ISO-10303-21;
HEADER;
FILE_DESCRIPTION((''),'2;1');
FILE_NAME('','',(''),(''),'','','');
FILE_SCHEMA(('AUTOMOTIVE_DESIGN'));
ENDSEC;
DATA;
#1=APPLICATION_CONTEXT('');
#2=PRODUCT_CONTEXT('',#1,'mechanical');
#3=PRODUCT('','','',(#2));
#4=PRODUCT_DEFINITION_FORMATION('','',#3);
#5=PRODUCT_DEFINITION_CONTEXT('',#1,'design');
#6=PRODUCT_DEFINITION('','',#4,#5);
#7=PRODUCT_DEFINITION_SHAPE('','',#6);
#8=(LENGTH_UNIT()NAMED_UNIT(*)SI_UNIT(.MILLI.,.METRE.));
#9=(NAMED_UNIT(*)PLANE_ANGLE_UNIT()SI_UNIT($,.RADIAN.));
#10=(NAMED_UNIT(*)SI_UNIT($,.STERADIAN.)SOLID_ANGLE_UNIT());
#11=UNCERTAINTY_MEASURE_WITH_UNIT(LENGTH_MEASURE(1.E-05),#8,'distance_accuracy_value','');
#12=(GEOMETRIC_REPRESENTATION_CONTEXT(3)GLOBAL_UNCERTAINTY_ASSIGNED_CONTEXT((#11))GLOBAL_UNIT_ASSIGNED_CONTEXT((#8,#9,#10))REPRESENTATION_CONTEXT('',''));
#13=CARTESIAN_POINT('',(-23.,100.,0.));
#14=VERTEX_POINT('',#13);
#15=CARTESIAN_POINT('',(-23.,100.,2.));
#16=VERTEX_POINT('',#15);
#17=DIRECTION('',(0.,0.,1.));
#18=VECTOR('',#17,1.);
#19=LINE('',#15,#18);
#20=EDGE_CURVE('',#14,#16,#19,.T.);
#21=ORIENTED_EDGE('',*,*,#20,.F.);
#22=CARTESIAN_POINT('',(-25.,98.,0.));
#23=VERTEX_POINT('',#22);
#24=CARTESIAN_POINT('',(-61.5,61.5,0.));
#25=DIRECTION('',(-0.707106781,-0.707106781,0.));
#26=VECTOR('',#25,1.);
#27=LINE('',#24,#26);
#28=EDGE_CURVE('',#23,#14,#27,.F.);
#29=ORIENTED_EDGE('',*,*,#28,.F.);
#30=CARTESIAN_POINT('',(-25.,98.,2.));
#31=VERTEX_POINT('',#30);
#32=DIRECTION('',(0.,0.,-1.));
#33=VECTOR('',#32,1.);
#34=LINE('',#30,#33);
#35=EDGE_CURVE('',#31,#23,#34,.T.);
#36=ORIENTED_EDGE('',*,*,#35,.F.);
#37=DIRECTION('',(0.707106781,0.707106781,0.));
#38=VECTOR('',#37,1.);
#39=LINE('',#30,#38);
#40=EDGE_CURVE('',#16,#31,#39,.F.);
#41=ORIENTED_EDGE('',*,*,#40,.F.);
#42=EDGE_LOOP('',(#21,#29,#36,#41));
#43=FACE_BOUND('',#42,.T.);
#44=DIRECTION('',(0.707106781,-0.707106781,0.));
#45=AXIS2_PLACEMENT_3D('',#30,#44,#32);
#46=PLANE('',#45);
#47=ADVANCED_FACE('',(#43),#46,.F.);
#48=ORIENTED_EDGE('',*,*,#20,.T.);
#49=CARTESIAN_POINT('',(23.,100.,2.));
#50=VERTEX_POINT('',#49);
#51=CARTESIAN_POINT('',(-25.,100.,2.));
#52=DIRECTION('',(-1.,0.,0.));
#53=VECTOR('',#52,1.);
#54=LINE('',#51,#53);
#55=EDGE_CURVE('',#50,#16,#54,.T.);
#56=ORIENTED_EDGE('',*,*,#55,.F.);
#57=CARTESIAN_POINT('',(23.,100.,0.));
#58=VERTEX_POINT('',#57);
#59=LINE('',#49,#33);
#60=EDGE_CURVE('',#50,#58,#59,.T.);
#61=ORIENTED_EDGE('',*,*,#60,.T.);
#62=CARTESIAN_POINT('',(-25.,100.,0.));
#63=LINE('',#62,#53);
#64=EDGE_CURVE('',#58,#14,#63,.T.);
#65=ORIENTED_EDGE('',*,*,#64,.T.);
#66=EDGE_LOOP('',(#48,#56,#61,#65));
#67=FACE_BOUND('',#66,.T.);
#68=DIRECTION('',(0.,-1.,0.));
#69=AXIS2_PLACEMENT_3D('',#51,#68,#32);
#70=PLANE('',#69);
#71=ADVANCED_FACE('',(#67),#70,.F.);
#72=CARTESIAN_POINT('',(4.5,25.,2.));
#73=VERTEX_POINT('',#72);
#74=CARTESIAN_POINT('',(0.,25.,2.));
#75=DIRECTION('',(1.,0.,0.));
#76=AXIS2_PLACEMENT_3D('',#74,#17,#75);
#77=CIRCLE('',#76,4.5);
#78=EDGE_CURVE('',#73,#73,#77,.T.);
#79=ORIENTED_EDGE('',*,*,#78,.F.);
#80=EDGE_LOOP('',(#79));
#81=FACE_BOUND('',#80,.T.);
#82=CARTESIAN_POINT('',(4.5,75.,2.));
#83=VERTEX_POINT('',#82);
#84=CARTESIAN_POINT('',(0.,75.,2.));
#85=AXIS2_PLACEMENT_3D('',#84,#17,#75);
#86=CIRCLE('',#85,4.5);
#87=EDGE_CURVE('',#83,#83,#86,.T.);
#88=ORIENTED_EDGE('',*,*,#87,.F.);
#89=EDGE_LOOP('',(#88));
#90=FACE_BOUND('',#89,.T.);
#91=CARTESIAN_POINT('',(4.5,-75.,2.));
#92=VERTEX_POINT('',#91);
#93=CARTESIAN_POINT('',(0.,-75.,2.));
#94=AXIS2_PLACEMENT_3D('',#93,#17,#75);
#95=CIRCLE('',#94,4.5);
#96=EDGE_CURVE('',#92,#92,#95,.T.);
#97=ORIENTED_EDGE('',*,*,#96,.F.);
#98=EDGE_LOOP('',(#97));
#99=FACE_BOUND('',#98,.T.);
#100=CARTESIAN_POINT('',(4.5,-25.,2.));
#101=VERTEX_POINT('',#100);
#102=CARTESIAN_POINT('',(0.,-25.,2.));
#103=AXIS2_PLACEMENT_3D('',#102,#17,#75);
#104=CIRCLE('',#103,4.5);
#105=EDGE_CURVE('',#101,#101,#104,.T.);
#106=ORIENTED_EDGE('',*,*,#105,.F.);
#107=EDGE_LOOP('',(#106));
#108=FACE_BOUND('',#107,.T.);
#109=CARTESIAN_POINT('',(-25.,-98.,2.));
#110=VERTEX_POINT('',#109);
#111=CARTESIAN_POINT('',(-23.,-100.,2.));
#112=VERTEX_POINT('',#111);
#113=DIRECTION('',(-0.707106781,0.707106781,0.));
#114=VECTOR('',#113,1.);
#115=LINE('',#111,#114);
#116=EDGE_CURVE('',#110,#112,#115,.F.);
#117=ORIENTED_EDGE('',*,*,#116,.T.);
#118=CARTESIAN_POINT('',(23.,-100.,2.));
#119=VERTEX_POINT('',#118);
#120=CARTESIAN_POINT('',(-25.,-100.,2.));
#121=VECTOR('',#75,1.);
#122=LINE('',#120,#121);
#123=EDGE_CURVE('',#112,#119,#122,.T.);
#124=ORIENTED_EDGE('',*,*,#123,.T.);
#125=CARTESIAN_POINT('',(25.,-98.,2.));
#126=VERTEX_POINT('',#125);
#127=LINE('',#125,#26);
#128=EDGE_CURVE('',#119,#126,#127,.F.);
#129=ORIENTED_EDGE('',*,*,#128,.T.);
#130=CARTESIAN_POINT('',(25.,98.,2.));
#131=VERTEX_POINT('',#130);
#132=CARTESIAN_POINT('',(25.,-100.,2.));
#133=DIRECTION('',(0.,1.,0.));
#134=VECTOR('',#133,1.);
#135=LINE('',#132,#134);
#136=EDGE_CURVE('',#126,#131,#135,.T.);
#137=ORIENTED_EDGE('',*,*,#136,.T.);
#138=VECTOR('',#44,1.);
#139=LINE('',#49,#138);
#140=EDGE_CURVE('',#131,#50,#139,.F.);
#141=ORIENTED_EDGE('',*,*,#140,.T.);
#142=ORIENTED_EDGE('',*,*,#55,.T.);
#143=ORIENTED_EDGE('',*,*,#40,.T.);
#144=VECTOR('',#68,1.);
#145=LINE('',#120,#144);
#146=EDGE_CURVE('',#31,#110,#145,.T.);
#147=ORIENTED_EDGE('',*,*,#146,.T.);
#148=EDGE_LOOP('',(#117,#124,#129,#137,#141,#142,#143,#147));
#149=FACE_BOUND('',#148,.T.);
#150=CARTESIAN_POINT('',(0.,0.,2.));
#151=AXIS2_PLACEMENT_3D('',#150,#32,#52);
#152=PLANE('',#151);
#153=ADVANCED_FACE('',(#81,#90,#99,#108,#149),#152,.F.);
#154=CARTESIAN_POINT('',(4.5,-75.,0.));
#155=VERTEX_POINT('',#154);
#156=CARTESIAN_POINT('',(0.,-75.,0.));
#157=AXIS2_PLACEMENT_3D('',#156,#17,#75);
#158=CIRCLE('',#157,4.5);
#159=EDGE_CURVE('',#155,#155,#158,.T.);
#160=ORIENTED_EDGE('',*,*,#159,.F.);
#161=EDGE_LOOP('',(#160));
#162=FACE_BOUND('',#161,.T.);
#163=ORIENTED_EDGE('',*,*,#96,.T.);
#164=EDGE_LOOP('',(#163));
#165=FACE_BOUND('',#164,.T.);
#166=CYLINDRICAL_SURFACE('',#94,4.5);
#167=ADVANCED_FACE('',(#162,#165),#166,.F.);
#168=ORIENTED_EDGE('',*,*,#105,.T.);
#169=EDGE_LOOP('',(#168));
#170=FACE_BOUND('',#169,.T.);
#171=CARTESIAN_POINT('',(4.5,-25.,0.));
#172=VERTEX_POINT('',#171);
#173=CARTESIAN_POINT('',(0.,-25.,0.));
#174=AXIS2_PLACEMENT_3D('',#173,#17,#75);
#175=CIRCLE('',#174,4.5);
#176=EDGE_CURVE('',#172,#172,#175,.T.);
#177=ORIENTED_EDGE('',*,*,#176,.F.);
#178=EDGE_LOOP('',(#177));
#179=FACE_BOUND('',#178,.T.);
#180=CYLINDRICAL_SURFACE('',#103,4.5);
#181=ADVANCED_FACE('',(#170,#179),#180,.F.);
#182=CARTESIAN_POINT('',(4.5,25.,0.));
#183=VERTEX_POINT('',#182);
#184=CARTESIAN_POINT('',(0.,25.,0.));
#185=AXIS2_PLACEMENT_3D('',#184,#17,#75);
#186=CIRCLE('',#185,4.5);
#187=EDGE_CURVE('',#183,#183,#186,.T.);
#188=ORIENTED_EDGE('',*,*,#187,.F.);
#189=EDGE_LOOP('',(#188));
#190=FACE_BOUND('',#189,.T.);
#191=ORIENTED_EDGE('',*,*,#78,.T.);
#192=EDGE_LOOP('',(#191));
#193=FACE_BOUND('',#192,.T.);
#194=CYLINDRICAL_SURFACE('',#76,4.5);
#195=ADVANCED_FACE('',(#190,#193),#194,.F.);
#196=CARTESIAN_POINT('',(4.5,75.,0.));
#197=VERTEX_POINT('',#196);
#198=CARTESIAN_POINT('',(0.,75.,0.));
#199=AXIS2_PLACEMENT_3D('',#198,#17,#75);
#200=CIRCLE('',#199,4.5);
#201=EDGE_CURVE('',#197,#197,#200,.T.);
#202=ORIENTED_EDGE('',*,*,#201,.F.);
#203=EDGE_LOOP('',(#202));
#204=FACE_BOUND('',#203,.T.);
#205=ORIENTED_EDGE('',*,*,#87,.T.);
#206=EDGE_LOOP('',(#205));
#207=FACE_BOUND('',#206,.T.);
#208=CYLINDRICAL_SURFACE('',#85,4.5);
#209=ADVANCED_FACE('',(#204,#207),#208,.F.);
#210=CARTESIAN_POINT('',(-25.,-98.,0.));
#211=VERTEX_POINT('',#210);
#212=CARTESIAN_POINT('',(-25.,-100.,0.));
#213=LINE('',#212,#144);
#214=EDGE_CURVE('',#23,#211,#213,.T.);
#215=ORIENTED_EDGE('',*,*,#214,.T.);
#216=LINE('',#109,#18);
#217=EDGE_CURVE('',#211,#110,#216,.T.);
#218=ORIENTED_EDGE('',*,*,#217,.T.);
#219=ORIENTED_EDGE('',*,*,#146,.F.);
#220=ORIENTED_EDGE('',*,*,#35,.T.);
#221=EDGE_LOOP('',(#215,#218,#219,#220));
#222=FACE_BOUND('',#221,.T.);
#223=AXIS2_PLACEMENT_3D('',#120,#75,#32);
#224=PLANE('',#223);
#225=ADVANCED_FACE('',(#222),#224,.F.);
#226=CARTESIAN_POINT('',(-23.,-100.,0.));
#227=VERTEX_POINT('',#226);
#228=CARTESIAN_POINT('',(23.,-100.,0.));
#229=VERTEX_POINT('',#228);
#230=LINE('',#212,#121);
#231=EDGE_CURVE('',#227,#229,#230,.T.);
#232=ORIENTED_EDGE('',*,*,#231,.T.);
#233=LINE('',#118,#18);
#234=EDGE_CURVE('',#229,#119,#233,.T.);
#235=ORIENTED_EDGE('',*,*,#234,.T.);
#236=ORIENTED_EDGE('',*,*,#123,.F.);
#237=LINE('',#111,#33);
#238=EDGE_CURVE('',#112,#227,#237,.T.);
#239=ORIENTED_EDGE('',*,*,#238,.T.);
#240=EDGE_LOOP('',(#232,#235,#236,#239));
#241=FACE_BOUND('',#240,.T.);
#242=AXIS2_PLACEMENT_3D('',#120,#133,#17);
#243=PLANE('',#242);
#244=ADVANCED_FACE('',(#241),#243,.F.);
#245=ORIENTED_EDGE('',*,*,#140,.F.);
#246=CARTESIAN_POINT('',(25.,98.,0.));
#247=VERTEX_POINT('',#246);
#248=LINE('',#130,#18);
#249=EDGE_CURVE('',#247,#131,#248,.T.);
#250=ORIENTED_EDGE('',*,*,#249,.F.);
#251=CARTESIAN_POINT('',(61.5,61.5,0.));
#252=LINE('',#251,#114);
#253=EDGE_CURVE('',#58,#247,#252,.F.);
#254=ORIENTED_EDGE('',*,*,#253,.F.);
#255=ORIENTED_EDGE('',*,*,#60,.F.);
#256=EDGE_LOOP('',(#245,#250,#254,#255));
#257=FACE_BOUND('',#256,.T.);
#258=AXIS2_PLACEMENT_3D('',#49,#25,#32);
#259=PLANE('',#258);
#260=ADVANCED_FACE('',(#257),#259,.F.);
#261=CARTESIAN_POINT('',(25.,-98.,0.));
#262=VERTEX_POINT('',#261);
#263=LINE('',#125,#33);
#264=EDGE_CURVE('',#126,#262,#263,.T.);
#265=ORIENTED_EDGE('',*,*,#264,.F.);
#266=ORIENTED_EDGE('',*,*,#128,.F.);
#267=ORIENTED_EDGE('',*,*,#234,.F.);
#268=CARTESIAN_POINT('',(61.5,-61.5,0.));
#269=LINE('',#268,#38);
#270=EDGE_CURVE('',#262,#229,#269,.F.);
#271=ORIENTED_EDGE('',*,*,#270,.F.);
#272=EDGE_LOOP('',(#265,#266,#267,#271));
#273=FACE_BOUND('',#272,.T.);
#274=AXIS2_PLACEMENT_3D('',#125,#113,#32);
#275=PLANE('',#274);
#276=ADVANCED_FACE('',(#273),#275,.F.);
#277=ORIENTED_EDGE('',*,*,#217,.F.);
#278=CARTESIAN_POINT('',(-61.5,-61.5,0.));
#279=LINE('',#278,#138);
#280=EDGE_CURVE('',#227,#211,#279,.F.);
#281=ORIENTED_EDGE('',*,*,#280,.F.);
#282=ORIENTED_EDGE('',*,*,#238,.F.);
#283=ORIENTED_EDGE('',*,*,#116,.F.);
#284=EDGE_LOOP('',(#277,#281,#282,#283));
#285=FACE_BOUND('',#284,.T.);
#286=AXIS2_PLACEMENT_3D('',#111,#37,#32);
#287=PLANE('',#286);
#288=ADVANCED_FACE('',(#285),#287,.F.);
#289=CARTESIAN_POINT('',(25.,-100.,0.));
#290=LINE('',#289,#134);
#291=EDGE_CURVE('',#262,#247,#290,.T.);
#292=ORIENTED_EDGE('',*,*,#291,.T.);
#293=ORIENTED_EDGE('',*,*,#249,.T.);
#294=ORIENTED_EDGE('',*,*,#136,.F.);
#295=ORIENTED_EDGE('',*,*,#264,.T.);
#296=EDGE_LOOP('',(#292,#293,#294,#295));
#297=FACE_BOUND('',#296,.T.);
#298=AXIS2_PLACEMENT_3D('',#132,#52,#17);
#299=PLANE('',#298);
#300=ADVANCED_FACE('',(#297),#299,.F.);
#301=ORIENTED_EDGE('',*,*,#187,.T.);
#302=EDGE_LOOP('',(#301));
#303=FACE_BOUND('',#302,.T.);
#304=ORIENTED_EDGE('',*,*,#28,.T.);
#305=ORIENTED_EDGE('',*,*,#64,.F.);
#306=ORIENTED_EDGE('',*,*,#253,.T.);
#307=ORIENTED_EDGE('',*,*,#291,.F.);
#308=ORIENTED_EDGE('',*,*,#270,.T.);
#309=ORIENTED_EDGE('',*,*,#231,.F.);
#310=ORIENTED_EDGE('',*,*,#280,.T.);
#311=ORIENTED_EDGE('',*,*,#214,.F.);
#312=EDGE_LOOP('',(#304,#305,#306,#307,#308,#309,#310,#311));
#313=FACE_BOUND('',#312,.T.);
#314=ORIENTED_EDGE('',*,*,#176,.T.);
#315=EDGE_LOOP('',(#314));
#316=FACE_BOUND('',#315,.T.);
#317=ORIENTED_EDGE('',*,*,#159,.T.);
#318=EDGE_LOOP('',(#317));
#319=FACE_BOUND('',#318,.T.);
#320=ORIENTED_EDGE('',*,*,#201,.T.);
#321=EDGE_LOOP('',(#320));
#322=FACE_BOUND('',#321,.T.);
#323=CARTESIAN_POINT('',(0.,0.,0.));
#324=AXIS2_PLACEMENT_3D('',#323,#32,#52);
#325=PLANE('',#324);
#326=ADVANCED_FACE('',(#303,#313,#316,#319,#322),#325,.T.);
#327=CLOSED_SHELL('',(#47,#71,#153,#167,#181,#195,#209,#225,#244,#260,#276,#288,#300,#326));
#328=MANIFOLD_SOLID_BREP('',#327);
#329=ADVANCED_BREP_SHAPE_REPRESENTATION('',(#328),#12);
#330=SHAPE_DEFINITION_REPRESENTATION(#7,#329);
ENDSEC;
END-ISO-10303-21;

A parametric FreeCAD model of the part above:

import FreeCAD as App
import Part
import Sketcher

V = App.Vector
Q = App.Units.Quantity


def edges_at(feature, points):
    """Names of the edges that pass closest to the given points."""
    edges = feature.Shape.Edges
    near = lambda p: min(range(len(edges)), key=lambda i: edges[i].distToShape(Part.Vertex(*p))[0])
    return sorted({f"Edge{near(p) + 1}" for p in points})


def add_polygon(sketch, points):
    """Adds a closed chain of lines whose ends are joined by coincident constraints."""
    first, n = sketch.GeometryCount, len(points)
    for a, b in zip(points, points[1:] + points[:1]):
        sketch.addGeometry(Part.LineSegment(App.Vector(*a, 0), App.Vector(*b, 0)), False)
    for i in range(n):
        sketch.addConstraint(Sketcher.Constraint("Coincident", first + i, 2, first + (i + 1) % n, 1))

doc = App.newDocument("Part")
body = doc.addObject("PartDesign::Body", "Body")

# Sketch on XY plane
sketch1 = doc.addObject("Sketcher::SketchObject", "Sketch")
body.addObject(sketch1)
sketch1.AttachmentSupport = (doc.XY_Plane, [""])
sketch1.MapMode = "FlatFace"
add_polygon(sketch1, [(-25, 100), (-25, -100), (25, -100), (25, 100)])  # lines 0-3
sketch1.addConstraint(Sketcher.Constraint("Vertical", 0))
sketch1.addConstraint(Sketcher.Constraint("Horizontal", 1))
sketch1.addConstraint(Sketcher.Constraint("Vertical", 2))
sketch1.addConstraint(Sketcher.Constraint("Horizontal", 3))
sketch1.addConstraint(Sketcher.Constraint("Symmetric", 0, 2, 2, 2, -1, 1))
sketch1.addConstraint(Sketcher.Constraint("DistanceX", 1, 1, 1, 2, Q("50 mm")))
sketch1.addConstraint(Sketcher.Constraint("DistanceY", 0, 2, 0, 1, Q("200 mm")))
pad1 = doc.addObject("PartDesign::Pad", "Pad")
body.addObject(pad1)
pad1.Profile = sketch1
pad1.Length = 2
doc.recompute()

chamfer = doc.addObject("PartDesign::Chamfer", "Chamfer")
body.addObject(chamfer)
chamfer.Base = (pad1, edges_at(pad1, [
    (25, -100, 1),
    (-25, -100, 1),
    (-25, 100, 1),
    (25, 100, 1),
]))
chamfer.Size = 2

# Sketch on XY plane
sketch2 = doc.addObject("Sketcher::SketchObject", "Sketch001")
body.addObject(sketch2)
sketch2.AttachmentSupport = (doc.XY_Plane, [""])
sketch2.MapMode = "FlatFace"
sketch2.AttachmentOffset = App.Placement(V(0, 0, 2), App.Rotation())
sketch2.addGeometry(Part.Circle(V(0, 75, 0), V(0, 0, 1), 4.5), False)
sketch2.addGeometry(Part.Circle(V(0, 25, 0), V(0, 0, 1), 4.5), False)
sketch2.addGeometry(Part.Circle(V(0, -25, 0), V(0, 0, 1), 4.5), False)
sketch2.addGeometry(Part.Circle(V(0, -75, 0), V(0, 0, 1), 4.5), False)
sketch2.addConstraint(Sketcher.Constraint("Equal", 0, 1))
sketch2.addConstraint(Sketcher.Constraint("Equal", 1, 2))
sketch2.addConstraint(Sketcher.Constraint("Equal", 2, 3))
sketch2.addConstraint(Sketcher.Constraint("Symmetric", 1, 3, 2, 3, -1, 1))
sketch2.addConstraint(Sketcher.Constraint("Symmetric", 0, 3, 3, 3, -1, 1))
sketch2.addConstraint(Sketcher.Constraint("PointOnObject", 0, 3, -2))
sketch2.addConstraint(Sketcher.Constraint("PointOnObject", 1, 3, -2))
sketch2.addConstraint(Sketcher.Constraint("Diameter", 0, Q("9 mm")))
sketch2.addConstraint(Sketcher.Constraint("DistanceY", -1, 1, 0, 3, Q("75 mm")))
sketch2.addConstraint(Sketcher.Constraint("DistanceY", -1, 1, 1, 3, Q("25 mm")))
doc.recompute()
hole = doc.addObject("PartDesign::Hole", "Hole")
body.addObject(hole)
hole.Profile = sketch2
hole.ThreadType = "None"
hole.Diameter = 9
hole.DepthType = "ThroughAll"

doc.recompute()
